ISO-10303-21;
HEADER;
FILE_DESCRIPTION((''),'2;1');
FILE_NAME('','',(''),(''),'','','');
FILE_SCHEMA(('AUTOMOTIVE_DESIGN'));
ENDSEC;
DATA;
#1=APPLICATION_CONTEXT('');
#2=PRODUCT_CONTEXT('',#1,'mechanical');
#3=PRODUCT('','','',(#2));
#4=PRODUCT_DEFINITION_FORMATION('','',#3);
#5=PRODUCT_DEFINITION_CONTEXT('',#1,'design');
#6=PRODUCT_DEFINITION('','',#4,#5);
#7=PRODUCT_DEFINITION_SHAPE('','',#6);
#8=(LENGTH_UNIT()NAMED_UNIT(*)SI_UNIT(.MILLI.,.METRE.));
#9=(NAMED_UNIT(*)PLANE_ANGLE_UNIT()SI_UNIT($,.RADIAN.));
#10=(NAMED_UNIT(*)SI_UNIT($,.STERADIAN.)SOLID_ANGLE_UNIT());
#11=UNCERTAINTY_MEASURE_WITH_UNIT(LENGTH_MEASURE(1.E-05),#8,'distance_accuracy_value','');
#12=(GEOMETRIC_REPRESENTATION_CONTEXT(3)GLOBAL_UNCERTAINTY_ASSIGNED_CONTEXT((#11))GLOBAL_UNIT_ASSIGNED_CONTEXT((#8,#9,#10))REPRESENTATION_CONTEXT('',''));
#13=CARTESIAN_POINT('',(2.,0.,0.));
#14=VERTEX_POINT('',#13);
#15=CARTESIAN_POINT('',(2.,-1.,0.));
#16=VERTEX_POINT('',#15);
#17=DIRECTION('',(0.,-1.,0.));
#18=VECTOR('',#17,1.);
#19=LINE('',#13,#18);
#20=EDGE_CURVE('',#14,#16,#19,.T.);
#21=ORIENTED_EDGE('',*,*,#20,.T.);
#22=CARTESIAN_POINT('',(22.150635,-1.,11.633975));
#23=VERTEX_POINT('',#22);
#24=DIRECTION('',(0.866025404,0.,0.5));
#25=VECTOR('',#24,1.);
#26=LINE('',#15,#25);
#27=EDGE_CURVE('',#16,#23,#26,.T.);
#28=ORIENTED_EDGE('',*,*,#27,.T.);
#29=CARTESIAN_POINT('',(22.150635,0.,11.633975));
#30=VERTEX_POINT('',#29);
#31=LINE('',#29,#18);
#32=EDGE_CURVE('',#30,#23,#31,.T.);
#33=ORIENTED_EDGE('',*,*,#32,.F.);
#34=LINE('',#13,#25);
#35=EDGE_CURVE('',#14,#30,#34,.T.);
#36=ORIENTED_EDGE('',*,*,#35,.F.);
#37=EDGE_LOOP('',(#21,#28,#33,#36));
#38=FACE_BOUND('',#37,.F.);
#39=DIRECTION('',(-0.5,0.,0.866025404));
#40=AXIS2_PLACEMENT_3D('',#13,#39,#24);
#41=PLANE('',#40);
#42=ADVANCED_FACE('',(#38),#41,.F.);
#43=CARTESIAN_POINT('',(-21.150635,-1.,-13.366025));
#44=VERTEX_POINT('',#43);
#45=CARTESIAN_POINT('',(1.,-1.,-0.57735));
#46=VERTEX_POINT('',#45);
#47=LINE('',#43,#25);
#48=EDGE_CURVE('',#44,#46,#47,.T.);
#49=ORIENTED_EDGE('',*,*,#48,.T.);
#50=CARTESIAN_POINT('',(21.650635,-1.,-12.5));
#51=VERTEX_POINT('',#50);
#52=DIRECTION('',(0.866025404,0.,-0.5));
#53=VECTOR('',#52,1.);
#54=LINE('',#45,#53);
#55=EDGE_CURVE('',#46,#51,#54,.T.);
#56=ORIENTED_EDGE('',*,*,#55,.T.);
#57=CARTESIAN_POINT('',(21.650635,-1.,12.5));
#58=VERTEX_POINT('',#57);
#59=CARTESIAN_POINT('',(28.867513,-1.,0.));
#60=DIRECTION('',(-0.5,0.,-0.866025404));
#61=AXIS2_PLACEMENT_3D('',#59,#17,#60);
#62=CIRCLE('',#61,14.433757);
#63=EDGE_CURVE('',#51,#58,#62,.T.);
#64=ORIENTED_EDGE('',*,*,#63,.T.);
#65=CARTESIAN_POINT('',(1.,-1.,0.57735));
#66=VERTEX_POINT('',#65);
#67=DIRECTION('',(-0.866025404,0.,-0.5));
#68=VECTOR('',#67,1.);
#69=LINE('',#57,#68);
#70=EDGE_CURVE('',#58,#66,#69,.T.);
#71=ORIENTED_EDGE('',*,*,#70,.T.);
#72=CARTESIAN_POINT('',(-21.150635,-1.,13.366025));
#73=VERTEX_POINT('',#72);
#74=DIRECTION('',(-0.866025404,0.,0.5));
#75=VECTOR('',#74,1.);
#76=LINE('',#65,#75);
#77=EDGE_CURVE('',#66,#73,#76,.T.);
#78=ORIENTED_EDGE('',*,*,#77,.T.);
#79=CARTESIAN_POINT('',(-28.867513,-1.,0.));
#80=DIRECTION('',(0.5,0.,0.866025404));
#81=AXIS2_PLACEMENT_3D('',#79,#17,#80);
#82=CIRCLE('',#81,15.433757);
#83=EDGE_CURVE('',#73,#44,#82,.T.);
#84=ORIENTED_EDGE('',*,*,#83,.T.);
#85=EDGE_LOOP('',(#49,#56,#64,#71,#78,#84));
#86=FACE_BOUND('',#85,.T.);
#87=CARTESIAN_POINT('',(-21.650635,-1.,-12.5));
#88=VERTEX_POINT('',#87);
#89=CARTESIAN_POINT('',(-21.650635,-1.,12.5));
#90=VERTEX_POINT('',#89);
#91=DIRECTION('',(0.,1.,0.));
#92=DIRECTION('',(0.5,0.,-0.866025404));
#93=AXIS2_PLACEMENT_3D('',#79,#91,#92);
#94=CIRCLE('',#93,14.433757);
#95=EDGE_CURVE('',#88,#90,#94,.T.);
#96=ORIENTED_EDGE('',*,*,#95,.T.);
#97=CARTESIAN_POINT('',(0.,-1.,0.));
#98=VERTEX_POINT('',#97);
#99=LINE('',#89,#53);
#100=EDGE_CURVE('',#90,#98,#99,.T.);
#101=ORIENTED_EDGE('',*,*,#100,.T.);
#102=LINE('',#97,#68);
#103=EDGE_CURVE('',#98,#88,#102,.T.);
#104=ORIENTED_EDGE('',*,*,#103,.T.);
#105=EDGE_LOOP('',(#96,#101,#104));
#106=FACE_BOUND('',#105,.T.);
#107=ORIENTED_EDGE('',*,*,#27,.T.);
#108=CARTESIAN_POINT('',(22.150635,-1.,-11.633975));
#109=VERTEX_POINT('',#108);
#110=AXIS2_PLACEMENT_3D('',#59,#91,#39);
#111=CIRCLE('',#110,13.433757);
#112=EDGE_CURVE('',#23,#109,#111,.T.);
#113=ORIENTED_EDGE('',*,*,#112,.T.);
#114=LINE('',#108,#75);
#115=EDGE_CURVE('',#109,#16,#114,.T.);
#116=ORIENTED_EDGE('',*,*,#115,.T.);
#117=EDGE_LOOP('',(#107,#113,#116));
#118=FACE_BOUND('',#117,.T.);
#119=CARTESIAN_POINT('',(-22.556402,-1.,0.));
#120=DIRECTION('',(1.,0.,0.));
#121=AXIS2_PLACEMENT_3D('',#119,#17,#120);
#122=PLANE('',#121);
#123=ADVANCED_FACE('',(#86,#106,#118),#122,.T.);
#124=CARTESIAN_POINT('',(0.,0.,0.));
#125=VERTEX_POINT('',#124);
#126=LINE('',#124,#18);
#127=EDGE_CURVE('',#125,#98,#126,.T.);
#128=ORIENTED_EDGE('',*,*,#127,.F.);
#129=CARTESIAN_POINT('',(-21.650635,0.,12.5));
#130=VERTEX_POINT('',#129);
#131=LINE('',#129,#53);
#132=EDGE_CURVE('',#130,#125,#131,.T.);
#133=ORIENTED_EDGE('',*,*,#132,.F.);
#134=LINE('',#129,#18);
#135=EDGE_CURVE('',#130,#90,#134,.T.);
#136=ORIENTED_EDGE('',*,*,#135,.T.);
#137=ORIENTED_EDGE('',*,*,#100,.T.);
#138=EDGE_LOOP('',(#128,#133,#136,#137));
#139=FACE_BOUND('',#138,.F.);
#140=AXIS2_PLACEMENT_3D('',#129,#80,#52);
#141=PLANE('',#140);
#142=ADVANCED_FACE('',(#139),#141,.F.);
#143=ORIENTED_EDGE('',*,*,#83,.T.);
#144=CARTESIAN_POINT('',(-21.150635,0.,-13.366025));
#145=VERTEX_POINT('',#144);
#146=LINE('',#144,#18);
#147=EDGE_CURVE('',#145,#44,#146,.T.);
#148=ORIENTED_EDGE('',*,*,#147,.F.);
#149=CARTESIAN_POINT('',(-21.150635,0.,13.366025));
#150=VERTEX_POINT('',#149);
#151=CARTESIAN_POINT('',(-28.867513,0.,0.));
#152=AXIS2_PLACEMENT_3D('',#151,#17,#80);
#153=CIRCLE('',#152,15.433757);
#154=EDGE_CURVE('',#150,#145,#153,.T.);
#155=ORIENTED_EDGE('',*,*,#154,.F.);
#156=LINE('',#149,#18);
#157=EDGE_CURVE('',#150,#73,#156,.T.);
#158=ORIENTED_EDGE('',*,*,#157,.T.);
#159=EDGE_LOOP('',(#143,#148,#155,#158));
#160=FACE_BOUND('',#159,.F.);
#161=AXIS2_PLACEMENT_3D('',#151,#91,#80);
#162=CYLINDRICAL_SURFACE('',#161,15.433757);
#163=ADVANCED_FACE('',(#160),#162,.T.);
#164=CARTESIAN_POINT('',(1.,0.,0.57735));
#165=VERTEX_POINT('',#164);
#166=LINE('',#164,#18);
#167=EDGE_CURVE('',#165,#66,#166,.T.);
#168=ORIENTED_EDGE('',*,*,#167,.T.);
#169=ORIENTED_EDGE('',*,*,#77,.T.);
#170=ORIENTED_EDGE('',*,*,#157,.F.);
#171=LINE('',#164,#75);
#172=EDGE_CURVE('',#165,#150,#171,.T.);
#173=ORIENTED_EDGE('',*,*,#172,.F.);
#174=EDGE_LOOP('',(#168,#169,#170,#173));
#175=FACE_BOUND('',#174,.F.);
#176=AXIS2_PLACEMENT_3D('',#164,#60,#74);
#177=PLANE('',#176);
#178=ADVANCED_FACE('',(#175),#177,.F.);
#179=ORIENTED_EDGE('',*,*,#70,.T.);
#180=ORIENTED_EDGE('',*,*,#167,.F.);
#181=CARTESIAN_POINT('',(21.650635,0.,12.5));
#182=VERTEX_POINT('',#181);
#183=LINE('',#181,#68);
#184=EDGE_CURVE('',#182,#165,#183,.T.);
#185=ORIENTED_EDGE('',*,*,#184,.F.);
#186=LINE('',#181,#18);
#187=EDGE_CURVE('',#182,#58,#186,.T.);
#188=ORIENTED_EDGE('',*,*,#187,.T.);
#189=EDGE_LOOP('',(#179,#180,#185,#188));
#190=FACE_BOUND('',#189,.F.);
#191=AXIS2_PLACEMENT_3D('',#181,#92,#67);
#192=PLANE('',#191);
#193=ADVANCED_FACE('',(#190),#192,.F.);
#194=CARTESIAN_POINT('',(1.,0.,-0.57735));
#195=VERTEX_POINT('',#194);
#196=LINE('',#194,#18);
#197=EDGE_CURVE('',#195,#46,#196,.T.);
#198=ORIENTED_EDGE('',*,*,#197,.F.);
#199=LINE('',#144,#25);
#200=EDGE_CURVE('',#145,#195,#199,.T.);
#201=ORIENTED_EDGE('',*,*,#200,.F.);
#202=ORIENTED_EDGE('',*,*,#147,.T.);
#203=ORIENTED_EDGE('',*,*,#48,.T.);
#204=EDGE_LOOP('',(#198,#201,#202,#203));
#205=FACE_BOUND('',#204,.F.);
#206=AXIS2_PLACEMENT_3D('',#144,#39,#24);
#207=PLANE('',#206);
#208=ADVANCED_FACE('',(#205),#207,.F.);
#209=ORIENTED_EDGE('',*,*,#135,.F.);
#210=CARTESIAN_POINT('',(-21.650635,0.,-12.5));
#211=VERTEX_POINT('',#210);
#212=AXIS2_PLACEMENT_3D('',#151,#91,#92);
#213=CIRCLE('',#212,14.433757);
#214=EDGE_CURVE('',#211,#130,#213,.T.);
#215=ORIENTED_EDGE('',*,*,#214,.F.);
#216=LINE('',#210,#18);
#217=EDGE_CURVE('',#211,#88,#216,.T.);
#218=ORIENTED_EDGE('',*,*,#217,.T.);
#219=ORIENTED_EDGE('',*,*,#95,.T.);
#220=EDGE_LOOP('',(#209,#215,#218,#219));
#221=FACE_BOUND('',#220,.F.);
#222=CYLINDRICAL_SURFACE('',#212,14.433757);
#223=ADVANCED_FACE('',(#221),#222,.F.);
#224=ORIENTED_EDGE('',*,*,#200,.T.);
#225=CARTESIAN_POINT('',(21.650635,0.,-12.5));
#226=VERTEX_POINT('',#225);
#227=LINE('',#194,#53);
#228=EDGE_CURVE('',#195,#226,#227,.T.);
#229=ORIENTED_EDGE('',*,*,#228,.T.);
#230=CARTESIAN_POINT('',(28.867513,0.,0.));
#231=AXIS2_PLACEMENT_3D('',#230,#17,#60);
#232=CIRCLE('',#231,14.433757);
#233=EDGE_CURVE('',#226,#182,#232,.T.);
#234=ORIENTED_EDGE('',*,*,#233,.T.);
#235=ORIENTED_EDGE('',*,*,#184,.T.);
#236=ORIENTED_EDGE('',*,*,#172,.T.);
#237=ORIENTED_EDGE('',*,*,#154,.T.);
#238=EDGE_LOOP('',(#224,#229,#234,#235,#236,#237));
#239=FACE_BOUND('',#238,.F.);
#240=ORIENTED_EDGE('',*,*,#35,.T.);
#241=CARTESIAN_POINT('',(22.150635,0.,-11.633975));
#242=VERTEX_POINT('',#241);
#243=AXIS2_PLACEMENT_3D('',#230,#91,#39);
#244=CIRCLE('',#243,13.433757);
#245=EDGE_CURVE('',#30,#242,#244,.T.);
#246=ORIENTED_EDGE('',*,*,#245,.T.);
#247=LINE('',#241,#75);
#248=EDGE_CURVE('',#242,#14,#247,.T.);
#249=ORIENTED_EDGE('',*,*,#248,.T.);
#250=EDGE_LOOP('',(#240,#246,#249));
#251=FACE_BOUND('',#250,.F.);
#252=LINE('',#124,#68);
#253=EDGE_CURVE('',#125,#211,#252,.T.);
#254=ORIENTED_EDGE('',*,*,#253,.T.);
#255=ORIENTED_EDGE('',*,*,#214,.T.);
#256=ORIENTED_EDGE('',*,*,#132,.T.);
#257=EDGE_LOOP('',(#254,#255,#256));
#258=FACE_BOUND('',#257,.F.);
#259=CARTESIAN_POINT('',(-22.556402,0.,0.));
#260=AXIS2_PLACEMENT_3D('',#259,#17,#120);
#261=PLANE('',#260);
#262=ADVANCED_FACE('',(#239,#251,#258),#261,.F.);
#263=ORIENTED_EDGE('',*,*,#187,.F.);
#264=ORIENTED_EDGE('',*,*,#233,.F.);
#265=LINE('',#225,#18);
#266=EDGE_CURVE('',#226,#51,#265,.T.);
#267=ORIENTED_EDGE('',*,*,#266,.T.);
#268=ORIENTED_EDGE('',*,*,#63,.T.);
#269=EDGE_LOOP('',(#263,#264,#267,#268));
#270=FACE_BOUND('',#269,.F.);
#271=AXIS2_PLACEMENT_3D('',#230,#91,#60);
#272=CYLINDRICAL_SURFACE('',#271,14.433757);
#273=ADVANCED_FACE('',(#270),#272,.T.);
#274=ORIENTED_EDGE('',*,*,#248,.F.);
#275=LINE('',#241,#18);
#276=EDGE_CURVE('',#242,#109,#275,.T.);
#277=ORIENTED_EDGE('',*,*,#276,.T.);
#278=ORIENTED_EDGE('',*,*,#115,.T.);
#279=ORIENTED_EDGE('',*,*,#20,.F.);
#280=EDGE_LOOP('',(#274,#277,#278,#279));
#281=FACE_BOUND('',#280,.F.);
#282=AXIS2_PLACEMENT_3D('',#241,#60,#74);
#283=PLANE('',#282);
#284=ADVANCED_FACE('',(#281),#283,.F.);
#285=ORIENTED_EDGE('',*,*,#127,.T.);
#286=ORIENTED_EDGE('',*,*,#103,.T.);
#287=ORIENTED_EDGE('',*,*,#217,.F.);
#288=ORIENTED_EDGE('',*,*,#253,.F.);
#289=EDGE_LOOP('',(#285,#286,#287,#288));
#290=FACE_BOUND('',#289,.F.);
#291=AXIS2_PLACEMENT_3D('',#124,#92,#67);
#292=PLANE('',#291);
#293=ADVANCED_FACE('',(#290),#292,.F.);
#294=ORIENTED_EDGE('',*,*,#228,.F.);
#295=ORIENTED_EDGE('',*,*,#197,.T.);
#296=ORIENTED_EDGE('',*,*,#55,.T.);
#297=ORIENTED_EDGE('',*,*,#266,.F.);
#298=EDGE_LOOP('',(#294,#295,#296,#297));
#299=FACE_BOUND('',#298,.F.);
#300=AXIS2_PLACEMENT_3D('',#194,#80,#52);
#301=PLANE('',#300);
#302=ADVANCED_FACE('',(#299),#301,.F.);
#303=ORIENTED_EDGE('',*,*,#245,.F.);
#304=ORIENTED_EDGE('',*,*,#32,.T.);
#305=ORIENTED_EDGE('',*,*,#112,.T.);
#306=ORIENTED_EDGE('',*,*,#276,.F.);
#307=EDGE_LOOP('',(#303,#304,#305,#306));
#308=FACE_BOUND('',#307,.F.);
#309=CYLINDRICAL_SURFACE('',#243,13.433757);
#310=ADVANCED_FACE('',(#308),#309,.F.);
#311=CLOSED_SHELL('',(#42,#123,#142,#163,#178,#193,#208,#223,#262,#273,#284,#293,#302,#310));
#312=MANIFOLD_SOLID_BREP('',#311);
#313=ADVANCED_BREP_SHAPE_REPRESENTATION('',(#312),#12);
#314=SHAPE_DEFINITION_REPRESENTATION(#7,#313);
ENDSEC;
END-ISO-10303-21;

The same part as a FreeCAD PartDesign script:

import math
import FreeCAD as App
import Part
import Sketcher

V = App.Vector
Q = App.Units.Quantity

doc = App.newDocument("Part")
body = doc.addObject("PartDesign::Body", "Body")

# Sketch on XZ plane
sketch1 = body.newObject("Sketcher::SketchObject", "Sketch")
sketch1.AttachmentSupport = (doc.getObject("XZ_Plane"), [""])
sketch1.MapMode = "FlatFace"
sketch1.addGeometry(Part.ArcOfCircle(Part.Circle(V(-29, 0, 0), V(0, 0, 1), 15), math.radians(60), math.radians(300)), False)
sketch1.addGeometry(Part.LineSegment(V(-21, -13, 0), V(1, -1, 0)), False)
sketch1.addGeometry(Part.LineSegment(V(1, -1, 0), V(22, -12, 0)), False)
sketch1.addGeometry(Part.ArcOfCircle(Part.Circle(V(29, 0, 0), V(0, 0, 1), 14), math.radians(-120), math.radians(120)), False)
sketch1.addGeometry(Part.LineSegment(V(22, 12, 0), V(1, 1, 0)), False)
sketch1.addGeometry(Part.LineSegment(V(1, 1, 0), V(-21, 13, 0)), False)
sketch1.addGeometry(Part.LineSegment(V(-22, 12, 0), V(0, 0, 0)), False)
sketch1.addGeometry(Part.LineSegment(V(0, 0, 0), V(-22, -12, 0)), False)
sketch1.addGeometry(Part.ArcOfCircle(Part.Circle(V(-29, 0, 0), V(0, 0, 1), 14), math.radians(60), math.radians(300)), False)
sketch1.addGeometry(Part.ArcOfCircle(Part.Circle(V(29, 0, 0), V(0, 0, 1), 13), math.radians(-120), math.radians(120)), False)
sketch1.addGeometry(Part.LineSegment(V(22, -12, 0), V(2, 0, 0)), False)
sketch1.addGeometry(Part.LineSegment(V(2, 0, 0), V(22, 12, 0)), False)
sketch1.addConstraint(Sketcher.Constraint("Tangent", 0, 2, 1, 1))
sketch1.addConstraint(Sketcher.Constraint("Coincident", 1, 2, 2, 1))
sketch1.addConstraint(Sketcher.Constraint("Tangent", 2, 2, 3, 1))
sketch1.addConstraint(Sketcher.Constraint("Tangent", 3, 2, 4, 1))
sketch1.addConstraint(Sketcher.Constraint("Coincident", 4, 2, 5, 1))
sketch1.addConstraint(Sketcher.Constraint("Tangent", 5, 2, 0, 1))
sketch1.addConstraint(Sketcher.Constraint("Coincident", 6, 2, 7, 1))
sketch1.addConstraint(Sketcher.Constraint("Tangent", 7, 2, 8, 2))
sketch1.addConstraint(Sketcher.Constraint("Tangent", 8, 1, 6, 1))
sketch1.addConstraint(Sketcher.Constraint("Tangent", 9, 1, 10, 1))
sketch1.addConstraint(Sketcher.Constraint("Coincident", 10, 2, 11, 1))
sketch1.addConstraint(Sketcher.Constraint("Tangent", 11, 2, 9, 2))
sketch1.addConstraint(Sketcher.Constraint("Coincident", 6, 2, -1, 1))
sketch1.addConstraint(Sketcher.Constraint("Coincident", 8, 3, 0, 3))
sketch1.addConstraint(Sketcher.Constraint("Coincident", 9, 3, 3, 3))
sketch1.addConstraint(Sketcher.Constraint("Equal", 3, 8))
sketch1.addConstraint(Sketcher.Constraint("Symmetric", 0, 3, 3, 3, -1, 1))
sketch1.addConstraint(Sketcher.Constraint("Symmetric", 2, 2, 7, 2, -2))
sketch1.addConstraint(Sketcher.Constraint("Symmetric", 1, 2, 4, 2, -1))
sketch1.addConstraint(Sketcher.Constraint("PointOnObject", 10, 2, -1))
sketch1.addConstraint(Sketcher.Constraint("Parallel", 1, 4))
sketch1.addConstraint(Sketcher.Constraint("Parallel", 6, 10))
sketch1.addConstraint(Sketcher.Constraint("Angle", 1, Q("30 deg")))
sketch1.addConstraint(Sketcher.Constraint("Distance", 6, 25.0))
sketch1.addConstraint(Sketcher.Constraint("DistanceX", -1, 1, 1, 2, 1.0))
sketch1.addConstraint(Sketcher.Constraint("DistanceX", -1, 1, 10, 2, 2.0))
pad1 = body.newObject("PartDesign::Pad", "Pad")
pad1.Profile = sketch1
pad1.Length = 1

doc.recompute()
